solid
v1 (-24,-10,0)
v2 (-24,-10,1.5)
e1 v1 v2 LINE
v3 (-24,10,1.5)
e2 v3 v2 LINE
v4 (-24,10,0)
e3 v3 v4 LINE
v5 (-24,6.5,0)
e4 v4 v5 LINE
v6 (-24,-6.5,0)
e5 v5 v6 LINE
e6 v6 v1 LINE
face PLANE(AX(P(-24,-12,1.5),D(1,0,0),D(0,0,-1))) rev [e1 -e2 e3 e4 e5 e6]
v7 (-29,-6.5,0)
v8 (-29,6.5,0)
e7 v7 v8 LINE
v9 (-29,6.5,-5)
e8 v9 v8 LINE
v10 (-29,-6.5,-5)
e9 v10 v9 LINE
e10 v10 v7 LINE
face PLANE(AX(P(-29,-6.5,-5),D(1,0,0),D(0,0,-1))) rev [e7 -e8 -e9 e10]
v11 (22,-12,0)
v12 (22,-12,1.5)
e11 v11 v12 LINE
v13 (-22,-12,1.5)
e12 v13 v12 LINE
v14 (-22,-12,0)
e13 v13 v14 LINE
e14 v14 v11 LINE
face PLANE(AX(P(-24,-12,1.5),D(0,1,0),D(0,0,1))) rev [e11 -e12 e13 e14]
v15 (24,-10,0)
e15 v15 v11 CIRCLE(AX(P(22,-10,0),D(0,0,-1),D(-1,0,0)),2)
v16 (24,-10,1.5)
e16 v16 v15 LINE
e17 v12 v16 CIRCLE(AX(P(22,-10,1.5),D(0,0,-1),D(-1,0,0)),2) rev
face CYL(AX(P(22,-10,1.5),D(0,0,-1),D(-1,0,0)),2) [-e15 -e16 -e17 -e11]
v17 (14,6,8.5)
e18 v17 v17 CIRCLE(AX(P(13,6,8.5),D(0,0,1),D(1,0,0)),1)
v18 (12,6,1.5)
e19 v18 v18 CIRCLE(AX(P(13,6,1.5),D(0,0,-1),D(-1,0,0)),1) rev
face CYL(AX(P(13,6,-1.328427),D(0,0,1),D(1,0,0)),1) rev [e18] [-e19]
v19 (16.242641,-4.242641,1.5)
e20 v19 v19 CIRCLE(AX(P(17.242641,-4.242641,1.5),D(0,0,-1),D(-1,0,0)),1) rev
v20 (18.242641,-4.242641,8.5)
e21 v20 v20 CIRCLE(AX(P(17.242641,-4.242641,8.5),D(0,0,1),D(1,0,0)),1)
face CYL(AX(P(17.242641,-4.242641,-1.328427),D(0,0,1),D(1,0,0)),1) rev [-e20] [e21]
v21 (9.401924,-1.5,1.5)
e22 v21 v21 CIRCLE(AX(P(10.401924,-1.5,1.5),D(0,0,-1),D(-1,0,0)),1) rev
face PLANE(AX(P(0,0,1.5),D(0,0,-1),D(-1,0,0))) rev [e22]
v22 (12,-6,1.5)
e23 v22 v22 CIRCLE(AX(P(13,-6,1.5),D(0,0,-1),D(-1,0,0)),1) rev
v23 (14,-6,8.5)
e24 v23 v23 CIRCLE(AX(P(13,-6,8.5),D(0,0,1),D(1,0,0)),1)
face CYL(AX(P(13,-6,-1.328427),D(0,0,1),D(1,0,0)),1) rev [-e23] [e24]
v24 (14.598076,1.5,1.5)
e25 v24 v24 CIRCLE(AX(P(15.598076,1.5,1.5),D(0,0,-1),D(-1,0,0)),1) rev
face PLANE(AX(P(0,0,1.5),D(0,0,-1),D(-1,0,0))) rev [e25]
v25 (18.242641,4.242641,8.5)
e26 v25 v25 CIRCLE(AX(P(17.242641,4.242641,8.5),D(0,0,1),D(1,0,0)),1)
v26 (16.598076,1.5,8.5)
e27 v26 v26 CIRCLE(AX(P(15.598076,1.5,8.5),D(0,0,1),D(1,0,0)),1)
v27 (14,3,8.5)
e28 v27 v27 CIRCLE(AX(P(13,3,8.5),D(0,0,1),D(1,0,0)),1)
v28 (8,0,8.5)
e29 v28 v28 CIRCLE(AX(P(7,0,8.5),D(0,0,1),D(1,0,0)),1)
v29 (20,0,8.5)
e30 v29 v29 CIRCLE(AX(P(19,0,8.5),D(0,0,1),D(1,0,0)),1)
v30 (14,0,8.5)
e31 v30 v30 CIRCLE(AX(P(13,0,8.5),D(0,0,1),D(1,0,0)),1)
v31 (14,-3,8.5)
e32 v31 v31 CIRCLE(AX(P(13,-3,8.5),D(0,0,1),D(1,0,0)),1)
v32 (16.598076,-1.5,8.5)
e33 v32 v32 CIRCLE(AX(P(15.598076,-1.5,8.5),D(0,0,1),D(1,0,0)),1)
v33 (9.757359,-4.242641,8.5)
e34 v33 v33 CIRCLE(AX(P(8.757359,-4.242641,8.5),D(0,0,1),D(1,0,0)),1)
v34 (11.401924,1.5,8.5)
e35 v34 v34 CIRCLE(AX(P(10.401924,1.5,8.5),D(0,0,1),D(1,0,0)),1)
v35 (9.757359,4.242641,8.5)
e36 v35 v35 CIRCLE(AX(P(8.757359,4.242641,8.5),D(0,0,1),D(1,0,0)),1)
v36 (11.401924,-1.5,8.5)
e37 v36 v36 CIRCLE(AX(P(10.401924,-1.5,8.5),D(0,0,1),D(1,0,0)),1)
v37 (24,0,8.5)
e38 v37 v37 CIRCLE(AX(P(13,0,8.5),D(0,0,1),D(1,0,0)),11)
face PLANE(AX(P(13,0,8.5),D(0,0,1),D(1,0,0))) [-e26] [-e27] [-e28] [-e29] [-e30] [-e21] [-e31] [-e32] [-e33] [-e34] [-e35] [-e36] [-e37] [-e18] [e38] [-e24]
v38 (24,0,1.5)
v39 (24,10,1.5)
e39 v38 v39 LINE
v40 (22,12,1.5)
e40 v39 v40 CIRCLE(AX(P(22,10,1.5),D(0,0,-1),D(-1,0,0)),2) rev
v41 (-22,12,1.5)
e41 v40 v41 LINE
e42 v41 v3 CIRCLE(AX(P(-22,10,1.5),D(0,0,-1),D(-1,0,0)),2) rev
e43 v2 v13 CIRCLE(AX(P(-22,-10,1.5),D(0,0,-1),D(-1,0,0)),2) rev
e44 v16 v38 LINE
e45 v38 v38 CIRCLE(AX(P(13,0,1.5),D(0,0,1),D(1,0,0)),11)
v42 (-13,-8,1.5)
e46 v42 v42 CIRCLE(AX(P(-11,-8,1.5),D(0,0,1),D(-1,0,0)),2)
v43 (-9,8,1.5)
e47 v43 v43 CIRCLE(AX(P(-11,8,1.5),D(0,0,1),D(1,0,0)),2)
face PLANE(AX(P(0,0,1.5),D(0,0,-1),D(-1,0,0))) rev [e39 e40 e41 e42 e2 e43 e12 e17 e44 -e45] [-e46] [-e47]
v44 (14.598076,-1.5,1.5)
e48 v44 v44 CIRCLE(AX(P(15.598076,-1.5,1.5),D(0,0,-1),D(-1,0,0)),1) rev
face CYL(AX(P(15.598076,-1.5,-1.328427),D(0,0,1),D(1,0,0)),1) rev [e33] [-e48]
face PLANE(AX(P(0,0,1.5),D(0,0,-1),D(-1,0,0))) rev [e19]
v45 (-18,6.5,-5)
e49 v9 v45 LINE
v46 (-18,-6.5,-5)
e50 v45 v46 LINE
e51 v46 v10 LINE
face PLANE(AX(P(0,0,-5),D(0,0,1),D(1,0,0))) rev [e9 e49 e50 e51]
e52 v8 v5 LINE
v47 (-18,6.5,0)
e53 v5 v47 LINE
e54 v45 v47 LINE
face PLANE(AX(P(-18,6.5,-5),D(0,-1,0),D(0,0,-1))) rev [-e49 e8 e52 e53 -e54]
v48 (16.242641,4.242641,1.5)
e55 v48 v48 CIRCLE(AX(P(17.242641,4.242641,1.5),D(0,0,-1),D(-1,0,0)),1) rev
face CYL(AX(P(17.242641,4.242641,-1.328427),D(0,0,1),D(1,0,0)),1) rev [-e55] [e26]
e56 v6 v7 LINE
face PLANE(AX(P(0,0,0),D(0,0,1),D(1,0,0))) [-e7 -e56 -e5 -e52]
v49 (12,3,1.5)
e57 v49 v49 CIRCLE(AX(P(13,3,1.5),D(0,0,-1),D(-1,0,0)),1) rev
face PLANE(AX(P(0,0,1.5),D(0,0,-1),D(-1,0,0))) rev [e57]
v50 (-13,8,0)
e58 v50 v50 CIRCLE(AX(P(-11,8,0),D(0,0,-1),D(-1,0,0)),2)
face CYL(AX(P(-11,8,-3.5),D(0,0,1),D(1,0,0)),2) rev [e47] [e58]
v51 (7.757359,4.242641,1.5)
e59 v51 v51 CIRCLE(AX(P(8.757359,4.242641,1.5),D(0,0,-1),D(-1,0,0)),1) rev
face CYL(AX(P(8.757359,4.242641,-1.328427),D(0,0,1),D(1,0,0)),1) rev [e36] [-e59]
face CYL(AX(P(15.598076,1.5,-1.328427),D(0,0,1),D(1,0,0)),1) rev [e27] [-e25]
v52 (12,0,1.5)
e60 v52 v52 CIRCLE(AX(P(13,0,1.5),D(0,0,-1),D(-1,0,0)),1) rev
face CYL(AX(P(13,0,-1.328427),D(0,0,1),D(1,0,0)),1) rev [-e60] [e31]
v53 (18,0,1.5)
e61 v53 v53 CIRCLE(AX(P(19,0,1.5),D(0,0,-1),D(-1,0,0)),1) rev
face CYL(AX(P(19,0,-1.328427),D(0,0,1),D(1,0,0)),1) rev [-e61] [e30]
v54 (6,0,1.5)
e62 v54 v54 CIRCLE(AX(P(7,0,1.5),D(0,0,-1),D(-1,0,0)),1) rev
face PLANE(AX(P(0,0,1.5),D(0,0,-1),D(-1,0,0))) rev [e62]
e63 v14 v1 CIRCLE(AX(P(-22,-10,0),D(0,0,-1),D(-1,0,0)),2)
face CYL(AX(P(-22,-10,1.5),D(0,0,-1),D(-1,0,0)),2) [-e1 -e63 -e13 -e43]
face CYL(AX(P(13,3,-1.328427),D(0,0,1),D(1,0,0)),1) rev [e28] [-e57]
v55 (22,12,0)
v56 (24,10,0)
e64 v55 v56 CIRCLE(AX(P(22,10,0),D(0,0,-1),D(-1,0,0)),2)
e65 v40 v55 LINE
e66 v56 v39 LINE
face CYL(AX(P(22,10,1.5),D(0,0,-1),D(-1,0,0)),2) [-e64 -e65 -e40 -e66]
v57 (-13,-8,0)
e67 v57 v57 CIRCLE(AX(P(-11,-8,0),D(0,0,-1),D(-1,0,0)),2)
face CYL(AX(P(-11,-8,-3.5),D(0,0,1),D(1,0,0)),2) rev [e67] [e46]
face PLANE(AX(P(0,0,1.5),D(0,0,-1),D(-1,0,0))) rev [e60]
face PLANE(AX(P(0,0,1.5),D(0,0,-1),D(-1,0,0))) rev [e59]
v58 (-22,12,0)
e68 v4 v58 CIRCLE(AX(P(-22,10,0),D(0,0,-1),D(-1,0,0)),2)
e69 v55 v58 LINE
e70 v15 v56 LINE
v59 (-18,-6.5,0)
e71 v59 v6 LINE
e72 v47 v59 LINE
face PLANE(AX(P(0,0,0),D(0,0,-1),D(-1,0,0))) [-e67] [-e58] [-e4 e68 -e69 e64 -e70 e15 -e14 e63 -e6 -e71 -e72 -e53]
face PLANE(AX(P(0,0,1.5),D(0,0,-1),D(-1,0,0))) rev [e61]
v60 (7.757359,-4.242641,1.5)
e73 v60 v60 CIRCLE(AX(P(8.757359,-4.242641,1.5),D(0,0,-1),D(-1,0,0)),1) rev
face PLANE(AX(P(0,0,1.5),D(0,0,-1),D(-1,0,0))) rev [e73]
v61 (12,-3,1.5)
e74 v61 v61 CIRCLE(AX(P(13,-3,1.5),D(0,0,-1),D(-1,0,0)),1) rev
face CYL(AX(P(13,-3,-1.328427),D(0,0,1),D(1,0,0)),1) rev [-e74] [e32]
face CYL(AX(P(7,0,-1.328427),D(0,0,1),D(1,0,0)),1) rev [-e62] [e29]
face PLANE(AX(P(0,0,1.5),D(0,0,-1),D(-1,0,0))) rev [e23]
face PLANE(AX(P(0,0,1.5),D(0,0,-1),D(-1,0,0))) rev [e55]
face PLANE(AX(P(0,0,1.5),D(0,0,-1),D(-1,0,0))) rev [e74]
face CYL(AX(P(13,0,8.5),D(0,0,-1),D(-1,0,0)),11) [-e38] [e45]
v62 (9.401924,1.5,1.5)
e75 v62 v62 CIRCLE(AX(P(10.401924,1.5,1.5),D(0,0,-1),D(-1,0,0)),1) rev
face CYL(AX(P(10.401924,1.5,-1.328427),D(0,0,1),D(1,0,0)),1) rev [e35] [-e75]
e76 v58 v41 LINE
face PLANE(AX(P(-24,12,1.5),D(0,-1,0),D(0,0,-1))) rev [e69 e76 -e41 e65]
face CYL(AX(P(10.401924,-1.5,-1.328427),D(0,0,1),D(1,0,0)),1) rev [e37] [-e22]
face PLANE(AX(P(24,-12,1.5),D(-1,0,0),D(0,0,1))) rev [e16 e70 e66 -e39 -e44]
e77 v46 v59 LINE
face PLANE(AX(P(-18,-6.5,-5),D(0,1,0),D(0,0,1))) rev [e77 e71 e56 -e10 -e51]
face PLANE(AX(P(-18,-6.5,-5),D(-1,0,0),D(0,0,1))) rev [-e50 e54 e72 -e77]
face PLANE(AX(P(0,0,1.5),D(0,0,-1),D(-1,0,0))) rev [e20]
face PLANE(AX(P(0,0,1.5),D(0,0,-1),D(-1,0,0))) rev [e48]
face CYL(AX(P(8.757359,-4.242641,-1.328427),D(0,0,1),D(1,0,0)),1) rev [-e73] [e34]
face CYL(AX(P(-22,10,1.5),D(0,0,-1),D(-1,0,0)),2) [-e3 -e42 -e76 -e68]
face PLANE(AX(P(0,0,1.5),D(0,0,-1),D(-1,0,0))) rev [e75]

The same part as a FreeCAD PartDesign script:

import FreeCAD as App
import Part
import Sketcher
Q = App.Units.Quantity


def edges_at(feature, points):
    """Names of the edges that pass closest to the given points."""
    edges = feature.Shape.Edges
    near = lambda p: min(range(len(edges)), key=lambda i: edges[i].distToShape(Part.Vertex(*p))[0])
    return sorted({f"Edge{near(p) + 1}" for p in points})

doc = App.newDocument("Part")
body = doc.addObject("PartDesign::Body", "Body")

sketch1 = body.newObject("Sketcher::SketchObject", "Sketch")
sketch1.AttachmentSupport = (doc.getObject("XY_Plane"), [""])
sketch1.MapMode = "FlatFace"
sketch1.addGeometry(Part.LineSegment(App.Vector(-24, 12, 0), App.Vector(-24, -12, 0)), False)
sketch1.addGeometry(Part.LineSegment(App.Vector(-24, -12, 0), App.Vector(24, -12, 0)), False)
sketch1.addGeometry(Part.LineSegment(App.Vector(24, -12, 0), App.Vector(24, 12, 0)), False)
sketch1.addGeometry(Part.LineSegment(App.Vector(24, 12, 0), App.Vector(-24, 12, 0)), False)
sketch1.addConstraint(Sketcher.Constraint("Coincident", 0, 2, 1, 1))
sketch1.addConstraint(Sketcher.Constraint("Coincident", 1, 2, 2, 1))
sketch1.addConstraint(Sketcher.Constraint("Coincident", 2, 2, 3, 1))
sketch1.addConstraint(Sketcher.Constraint("Coincident", 3, 2, 0, 1))
sketch1.addConstraint(Sketcher.Constraint("Vertical", 0))
sketch1.addConstraint(Sketcher.Constraint("Horizontal", 1))
sketch1.addConstraint(Sketcher.Constraint("Vertical", 2))
sketch1.addConstraint(Sketcher.Constraint("Horizontal", 3))
sketch1.addConstraint(Sketcher.Constraint("Symmetric", 0, 2, 2, 2, -1, 1))
sketch1.addConstraint(Sketcher.Constraint("DistanceX", 1, 1, 1, 2, Q("48 mm")))
sketch1.addConstraint(Sketcher.Constraint("DistanceY", 0, 2, 0, 1, Q("24 mm")))
pad1 = body.newObject("PartDesign::Pad", "Pad")
pad1.Profile = sketch1
pad1.Length = 1.5
doc.recompute()

fillet = body.newObject("PartDesign::Fillet", "Fillet")
fillet.Base = (pad1, edges_at(pad1, [
    (24, -12, 0.75),
    (-24, -12, 0.75),
    (-24, 12, 0.75),
    (24, 12, 0.75),
]))
fillet.Radius = 2

sketch2 = body.newObject("Sketcher::SketchObject", "Sketch001")
sketch2.AttachmentSupport = (doc.getObject("XY_Plane"), [""])
sketch2.MapMode = "FlatFace"
sketch2.AttachmentOffset = App.Placement(App.Vector(0, 0, 1.5), App.Rotation())
sketch2.addGeometry(Part.Circle(App.Vector(13, 0, 0), App.Vector(0, 0, 1), 11), False)
sketch2.addConstraint(Sketcher.Constraint("PointOnObject", 0, 3, -1))
sketch2.addConstraint(Sketcher.Constraint("Diameter", 0, Q("22 mm")))
sketch2.addConstraint(Sketcher.Constraint("DistanceX", -1, 1, 0, 3, Q("13 mm")))
pad2 = body.newObject("PartDesign::Pad", "Pad001")
pad2.Profile = sketch2
pad2.Length = 7

sketch3 = body.newObject("Sketcher::SketchObject", "Sketch002")
sketch3.AttachmentSupport = (doc.getObject("XY_Plane"), [""])
sketch3.MapMode = "FlatFace"
sketch3.addGeometry(Part.LineSegment(App.Vector(-18, 6, 0), App.Vector(-18, -6, 0)), False)
sketch3.addGeometry(Part.LineSegment(App.Vector(-18, -6, 0), App.Vector(-29, -6, 0)), False)
sketch3.addGeometry(Part.LineSegment(App.Vector(-29, -6, 0), App.Vector(-29, 6, 0)), False)
sketch3.addGeometry(Part.LineSegment(App.Vector(-29, 6, 0), App.Vector(-18, 6, 0)), False)
sketch3.addConstraint(Sketcher.Constraint("Coincident", 0, 2, 1, 1))
sketch3.addConstraint(Sketcher.Constraint("Coincident", 1, 2, 2, 1))
sketch3.addConstraint(Sketcher.Constraint("Coincident", 2, 2, 3, 1))
sketch3.addConstraint(Sketcher.Constraint("Coincident", 3, 2, 0, 1))
sketch3.addConstraint(Sketcher.Constraint("Vertical", 0))
sketch3.addConstraint(Sketcher.Constraint("Horizontal", 1))
sketch3.addConstraint(Sketcher.Constraint("Vertical", 2))
sketch3.addConstraint(Sketcher.Constraint("Horizontal", 3))
sketch3.addConstraint(Sketcher.Constraint("DistanceX", 1, 2, 1, 1, Q("11 mm")))
sketch3.addConstraint(Sketcher.Constraint("DistanceY", 0, 2, 0, 1, Q("13 mm")))
sketch3.addConstraint(Sketcher.Constraint("DistanceX", 0, 2, -1, 1, Q("18 mm")))
sketch3.addConstraint(Sketcher.Constraint("DistanceY", 0, 2, -1, 1, Q("6.5 mm")))
pad3 = body.newObject("PartDesign::Pad", "Pad002")
pad3.Profile = sketch3
pad3.Length = 5
pad3.Reversed = True

sketch4 = body.newObject("Sketcher::SketchObject", "Sketch003")
sketch4.AttachmentSupport = (doc.getObject("XY_Plane"), [""])
sketch4.MapMode = "FlatFace"
sketch4.AttachmentOffset = App.Placement(App.Vector(0, 0, 1.5), App.Rotation())
sketch4.addGeometry(Part.Circle(App.Vector(-11, 8, 0), App.Vector(0, 0, 1), 2), False)
sketch4.addGeometry(Part.Circle(App.Vector(-11, -8, 0), App.Vector(0, 0, 1), 2), False)
sketch4.addConstraint(Sketcher.Constraint("Equal", 0, 1))
sketch4.addConstraint(Sketcher.Constraint("Symmetric", 0, 3, 1, 3, -1))
sketch4.addConstraint(Sketcher.Constraint("Diameter", 0, Q("4 mm")))
sketch4.addConstraint(Sketcher.Constraint("DistanceX", 0, 3, -1, 1, Q("11 mm")))
sketch4.addConstraint(Sketcher.Constraint("DistanceY", -1, 1, 0, 3, Q("8 mm")))
pocket1 = body.newObject("PartDesign::Pocket", "Pocket")
pocket1.Profile = sketch4
pocket1.Length = 5

sketch5 = body.newObject("Sketcher::SketchObject", "Sketch004")
sketch5.AttachmentSupport = (doc.getObject("XY_Plane"), [""])
sketch5.MapMode = "FlatFace"
sketch5.AttachmentOffset = App.Placement(App.Vector(0, 0, 8.5), App.Rotation())
sketch5.addGeometry(Part.Circle(App.Vector(13, 0, 0), App.Vector(0, 0, 1), 1), False)
sketch5.addGeometry(Part.Circle(App.Vector(13, 3, 0), App.Vector(0, 0, 1), 1), False)
sketch5.addGeometry(Part.Circle(App.Vector(7, 0, 0), App.Vector(0, 0, 1), 1), False)
sketch5.addGeometry(Part.Circle(App.Vector(15.6, 1.5, 0), App.Vector(0, 0, 1), 1), False)
sketch5.addGeometry(Part.Circle(App.Vector(15.6, -1.5, 0), App.Vector(0, 0, 1), 1), False)
sketch5.addGeometry(Part.Circle(App.Vector(13, -3, 0), App.Vector(0, 0, 1), 1), False)
sketch5.addGeometry(Part.Circle(App.Vector(10.4, -1.5, 0), App.Vector(0, 0, 1), 1), False)
sketch5.addGeometry(Part.Circle(App.Vector(10.4, 1.5, 0), App.Vector(0, 0, 1), 1), False)
sketch5.addGeometry(Part.Circle(App.Vector(8.8, 4.2, 0), App.Vector(0, 0, 1), 1), False)
sketch5.addGeometry(Part.Circle(App.Vector(13, 6, 0), App.Vector(0, 0, 1), 1), False)
sketch5.addGeometry(Part.Circle(App.Vector(17.2, 4.2, 0), App.Vector(0, 0, 1), 1), False)
sketch5.addGeometry(Part.Circle(App.Vector(19, 0, 0), App.Vector(0, 0, 1), 1), False)
sketch5.addGeometry(Part.Circle(App.Vector(17.2, -4.2, 0), App.Vector(0, 0, 1), 1), False)
sketch5.addGeometry(Part.Circle(App.Vector(13, -6, 0), App.Vector(0, 0, 1), 1), False)
sketch5.addGeometry(Part.Circle(App.Vector(8.8, -4.2, 0), App.Vector(0, 0, 1), 1), False)
sketch5.addConstraint(Sketcher.Constraint("Equal", 0, 1))
sketch5.addConstraint(Sketcher.Constraint("Equal", 1, 2))
sketch5.addConstraint(Sketcher.Constraint("Equal", 2, 3))
sketch5.addConstraint(Sketcher.Constraint("Equal", 3, 4))
sketch5.addConstraint(Sketcher.Constraint("Equal", 4, 5))
sketch5.addConstraint(Sketcher.Constraint("Equal", 5, 6))
sketch5.addConstraint(Sketcher.Constraint("Equal", 6, 7))
sketch5.addConstraint(Sketcher.Constraint("Equal", 7, 8))
sketch5.addConstraint(Sketcher.Constraint("Equal", 8, 9))
sketch5.addConstraint(Sketcher.Constraint("Equal", 9, 10))
sketch5.addConstraint(Sketcher.Constraint("Equal", 10, 11))
sketch5.addConstraint(Sketcher.Constraint("Equal", 11, 12))
sketch5.addConstraint(Sketcher.Constraint("Equal", 12, 13))
sketch5.addConstraint(Sketcher.Constraint("Equal", 13, 14))
sketch5.addConstraint(Sketcher.Constraint("Symmetric", 3, 3, 4, 3, -1))
sketch5.addConstraint(Sketcher.Constraint("Symmetric", 1, 3, 5, 3, -1))
sketch5.addConstraint(Sketcher.Constraint("Symmetric", 6, 3, 7, 3, -1))
sketch5.addConstraint(Sketcher.Constraint("Symmetric", 10, 3, 12, 3, -1))
sketch5.addConstraint(Sketcher.Constraint("Symmetric", 9, 3, 13, 3, -1))
sketch5.addConstraint(Sketcher.Constraint("Symmetric", 8, 3, 14, 3, -1))
sketch5.addConstraint(Sketcher.Constraint("PointOnObject", 0, 3, -1))
sketch5.addConstraint(Sketcher.Constraint("PointOnObject", 2, 3, -1))
sketch5.addConstraint(Sketcher.Constraint("PointOnObject", 11, 3, -1))
sketch5.addConstraint(Sketcher.Constraint("Horizontal", 4, 3, 6, 3))
sketch5.addConstraint(Sketcher.Constraint("Horizontal", 8, 3, 10, 3))
sketch5.addConstraint(Sketcher.Constraint("Vertical", 0, 3, 1, 3))
sketch5.addConstraint(Sketcher.Constraint("Vertical", 5, 3, 9, 3))
sketch5.addConstraint(Sketcher.Constraint("Diameter", 0, Q("2 mm")))
sketch5.addConstraint(Sketcher.Constraint("DistanceX", -1, 1, 0, 3, Q("13 mm")))
sketch5.addConstraint(Sketcher.Constraint("DistanceY", -1, 1, 1, 3, Q("3 mm")))
sketch5.addConstraint(Sketcher.Constraint("DistanceX", -1, 1, 2, 3, Q("7 mm")))
sketch5.addConstraint(Sketcher.Constraint("DistanceY", -1, 1, 9, 3, Q("6 mm")))
sketch5.addConstraint(Sketcher.Constraint("DistanceX", -1, 1, 11, 3, Q("19 mm")))
sketch5.addConstraint(Sketcher.Constraint("DistanceY", 4, 3, 3, 3, Q("3 mm")))
sketch5.addConstraint(Sketcher.Constraint("DistanceX", -1, 1, 8, 3, Q("8.757359 mm")))
sketch5.addConstraint(Sketcher.Constraint("DistanceY", -1, 1, 8, 3, Q("4.242641 mm")))
sketch5.addConstraint(Sketcher.Constraint("DistanceX", -1, 1, 10, 3, Q("17.242641 mm")))
sketch5.addConstraint(Sketcher.Constraint("DistanceX", -1, 1, 3, 3, Q("15.598076 mm")))
sketch5.addConstraint(Sketcher.Constraint("DistanceX", -1, 1, 6, 3, Q("10.401924 mm")))
pocket2 = body.newObject("PartDesign::Pocket", "Pocket001")
pocket2.Profile = sketch5
pocket2.Length = 7

doc.recompute()
